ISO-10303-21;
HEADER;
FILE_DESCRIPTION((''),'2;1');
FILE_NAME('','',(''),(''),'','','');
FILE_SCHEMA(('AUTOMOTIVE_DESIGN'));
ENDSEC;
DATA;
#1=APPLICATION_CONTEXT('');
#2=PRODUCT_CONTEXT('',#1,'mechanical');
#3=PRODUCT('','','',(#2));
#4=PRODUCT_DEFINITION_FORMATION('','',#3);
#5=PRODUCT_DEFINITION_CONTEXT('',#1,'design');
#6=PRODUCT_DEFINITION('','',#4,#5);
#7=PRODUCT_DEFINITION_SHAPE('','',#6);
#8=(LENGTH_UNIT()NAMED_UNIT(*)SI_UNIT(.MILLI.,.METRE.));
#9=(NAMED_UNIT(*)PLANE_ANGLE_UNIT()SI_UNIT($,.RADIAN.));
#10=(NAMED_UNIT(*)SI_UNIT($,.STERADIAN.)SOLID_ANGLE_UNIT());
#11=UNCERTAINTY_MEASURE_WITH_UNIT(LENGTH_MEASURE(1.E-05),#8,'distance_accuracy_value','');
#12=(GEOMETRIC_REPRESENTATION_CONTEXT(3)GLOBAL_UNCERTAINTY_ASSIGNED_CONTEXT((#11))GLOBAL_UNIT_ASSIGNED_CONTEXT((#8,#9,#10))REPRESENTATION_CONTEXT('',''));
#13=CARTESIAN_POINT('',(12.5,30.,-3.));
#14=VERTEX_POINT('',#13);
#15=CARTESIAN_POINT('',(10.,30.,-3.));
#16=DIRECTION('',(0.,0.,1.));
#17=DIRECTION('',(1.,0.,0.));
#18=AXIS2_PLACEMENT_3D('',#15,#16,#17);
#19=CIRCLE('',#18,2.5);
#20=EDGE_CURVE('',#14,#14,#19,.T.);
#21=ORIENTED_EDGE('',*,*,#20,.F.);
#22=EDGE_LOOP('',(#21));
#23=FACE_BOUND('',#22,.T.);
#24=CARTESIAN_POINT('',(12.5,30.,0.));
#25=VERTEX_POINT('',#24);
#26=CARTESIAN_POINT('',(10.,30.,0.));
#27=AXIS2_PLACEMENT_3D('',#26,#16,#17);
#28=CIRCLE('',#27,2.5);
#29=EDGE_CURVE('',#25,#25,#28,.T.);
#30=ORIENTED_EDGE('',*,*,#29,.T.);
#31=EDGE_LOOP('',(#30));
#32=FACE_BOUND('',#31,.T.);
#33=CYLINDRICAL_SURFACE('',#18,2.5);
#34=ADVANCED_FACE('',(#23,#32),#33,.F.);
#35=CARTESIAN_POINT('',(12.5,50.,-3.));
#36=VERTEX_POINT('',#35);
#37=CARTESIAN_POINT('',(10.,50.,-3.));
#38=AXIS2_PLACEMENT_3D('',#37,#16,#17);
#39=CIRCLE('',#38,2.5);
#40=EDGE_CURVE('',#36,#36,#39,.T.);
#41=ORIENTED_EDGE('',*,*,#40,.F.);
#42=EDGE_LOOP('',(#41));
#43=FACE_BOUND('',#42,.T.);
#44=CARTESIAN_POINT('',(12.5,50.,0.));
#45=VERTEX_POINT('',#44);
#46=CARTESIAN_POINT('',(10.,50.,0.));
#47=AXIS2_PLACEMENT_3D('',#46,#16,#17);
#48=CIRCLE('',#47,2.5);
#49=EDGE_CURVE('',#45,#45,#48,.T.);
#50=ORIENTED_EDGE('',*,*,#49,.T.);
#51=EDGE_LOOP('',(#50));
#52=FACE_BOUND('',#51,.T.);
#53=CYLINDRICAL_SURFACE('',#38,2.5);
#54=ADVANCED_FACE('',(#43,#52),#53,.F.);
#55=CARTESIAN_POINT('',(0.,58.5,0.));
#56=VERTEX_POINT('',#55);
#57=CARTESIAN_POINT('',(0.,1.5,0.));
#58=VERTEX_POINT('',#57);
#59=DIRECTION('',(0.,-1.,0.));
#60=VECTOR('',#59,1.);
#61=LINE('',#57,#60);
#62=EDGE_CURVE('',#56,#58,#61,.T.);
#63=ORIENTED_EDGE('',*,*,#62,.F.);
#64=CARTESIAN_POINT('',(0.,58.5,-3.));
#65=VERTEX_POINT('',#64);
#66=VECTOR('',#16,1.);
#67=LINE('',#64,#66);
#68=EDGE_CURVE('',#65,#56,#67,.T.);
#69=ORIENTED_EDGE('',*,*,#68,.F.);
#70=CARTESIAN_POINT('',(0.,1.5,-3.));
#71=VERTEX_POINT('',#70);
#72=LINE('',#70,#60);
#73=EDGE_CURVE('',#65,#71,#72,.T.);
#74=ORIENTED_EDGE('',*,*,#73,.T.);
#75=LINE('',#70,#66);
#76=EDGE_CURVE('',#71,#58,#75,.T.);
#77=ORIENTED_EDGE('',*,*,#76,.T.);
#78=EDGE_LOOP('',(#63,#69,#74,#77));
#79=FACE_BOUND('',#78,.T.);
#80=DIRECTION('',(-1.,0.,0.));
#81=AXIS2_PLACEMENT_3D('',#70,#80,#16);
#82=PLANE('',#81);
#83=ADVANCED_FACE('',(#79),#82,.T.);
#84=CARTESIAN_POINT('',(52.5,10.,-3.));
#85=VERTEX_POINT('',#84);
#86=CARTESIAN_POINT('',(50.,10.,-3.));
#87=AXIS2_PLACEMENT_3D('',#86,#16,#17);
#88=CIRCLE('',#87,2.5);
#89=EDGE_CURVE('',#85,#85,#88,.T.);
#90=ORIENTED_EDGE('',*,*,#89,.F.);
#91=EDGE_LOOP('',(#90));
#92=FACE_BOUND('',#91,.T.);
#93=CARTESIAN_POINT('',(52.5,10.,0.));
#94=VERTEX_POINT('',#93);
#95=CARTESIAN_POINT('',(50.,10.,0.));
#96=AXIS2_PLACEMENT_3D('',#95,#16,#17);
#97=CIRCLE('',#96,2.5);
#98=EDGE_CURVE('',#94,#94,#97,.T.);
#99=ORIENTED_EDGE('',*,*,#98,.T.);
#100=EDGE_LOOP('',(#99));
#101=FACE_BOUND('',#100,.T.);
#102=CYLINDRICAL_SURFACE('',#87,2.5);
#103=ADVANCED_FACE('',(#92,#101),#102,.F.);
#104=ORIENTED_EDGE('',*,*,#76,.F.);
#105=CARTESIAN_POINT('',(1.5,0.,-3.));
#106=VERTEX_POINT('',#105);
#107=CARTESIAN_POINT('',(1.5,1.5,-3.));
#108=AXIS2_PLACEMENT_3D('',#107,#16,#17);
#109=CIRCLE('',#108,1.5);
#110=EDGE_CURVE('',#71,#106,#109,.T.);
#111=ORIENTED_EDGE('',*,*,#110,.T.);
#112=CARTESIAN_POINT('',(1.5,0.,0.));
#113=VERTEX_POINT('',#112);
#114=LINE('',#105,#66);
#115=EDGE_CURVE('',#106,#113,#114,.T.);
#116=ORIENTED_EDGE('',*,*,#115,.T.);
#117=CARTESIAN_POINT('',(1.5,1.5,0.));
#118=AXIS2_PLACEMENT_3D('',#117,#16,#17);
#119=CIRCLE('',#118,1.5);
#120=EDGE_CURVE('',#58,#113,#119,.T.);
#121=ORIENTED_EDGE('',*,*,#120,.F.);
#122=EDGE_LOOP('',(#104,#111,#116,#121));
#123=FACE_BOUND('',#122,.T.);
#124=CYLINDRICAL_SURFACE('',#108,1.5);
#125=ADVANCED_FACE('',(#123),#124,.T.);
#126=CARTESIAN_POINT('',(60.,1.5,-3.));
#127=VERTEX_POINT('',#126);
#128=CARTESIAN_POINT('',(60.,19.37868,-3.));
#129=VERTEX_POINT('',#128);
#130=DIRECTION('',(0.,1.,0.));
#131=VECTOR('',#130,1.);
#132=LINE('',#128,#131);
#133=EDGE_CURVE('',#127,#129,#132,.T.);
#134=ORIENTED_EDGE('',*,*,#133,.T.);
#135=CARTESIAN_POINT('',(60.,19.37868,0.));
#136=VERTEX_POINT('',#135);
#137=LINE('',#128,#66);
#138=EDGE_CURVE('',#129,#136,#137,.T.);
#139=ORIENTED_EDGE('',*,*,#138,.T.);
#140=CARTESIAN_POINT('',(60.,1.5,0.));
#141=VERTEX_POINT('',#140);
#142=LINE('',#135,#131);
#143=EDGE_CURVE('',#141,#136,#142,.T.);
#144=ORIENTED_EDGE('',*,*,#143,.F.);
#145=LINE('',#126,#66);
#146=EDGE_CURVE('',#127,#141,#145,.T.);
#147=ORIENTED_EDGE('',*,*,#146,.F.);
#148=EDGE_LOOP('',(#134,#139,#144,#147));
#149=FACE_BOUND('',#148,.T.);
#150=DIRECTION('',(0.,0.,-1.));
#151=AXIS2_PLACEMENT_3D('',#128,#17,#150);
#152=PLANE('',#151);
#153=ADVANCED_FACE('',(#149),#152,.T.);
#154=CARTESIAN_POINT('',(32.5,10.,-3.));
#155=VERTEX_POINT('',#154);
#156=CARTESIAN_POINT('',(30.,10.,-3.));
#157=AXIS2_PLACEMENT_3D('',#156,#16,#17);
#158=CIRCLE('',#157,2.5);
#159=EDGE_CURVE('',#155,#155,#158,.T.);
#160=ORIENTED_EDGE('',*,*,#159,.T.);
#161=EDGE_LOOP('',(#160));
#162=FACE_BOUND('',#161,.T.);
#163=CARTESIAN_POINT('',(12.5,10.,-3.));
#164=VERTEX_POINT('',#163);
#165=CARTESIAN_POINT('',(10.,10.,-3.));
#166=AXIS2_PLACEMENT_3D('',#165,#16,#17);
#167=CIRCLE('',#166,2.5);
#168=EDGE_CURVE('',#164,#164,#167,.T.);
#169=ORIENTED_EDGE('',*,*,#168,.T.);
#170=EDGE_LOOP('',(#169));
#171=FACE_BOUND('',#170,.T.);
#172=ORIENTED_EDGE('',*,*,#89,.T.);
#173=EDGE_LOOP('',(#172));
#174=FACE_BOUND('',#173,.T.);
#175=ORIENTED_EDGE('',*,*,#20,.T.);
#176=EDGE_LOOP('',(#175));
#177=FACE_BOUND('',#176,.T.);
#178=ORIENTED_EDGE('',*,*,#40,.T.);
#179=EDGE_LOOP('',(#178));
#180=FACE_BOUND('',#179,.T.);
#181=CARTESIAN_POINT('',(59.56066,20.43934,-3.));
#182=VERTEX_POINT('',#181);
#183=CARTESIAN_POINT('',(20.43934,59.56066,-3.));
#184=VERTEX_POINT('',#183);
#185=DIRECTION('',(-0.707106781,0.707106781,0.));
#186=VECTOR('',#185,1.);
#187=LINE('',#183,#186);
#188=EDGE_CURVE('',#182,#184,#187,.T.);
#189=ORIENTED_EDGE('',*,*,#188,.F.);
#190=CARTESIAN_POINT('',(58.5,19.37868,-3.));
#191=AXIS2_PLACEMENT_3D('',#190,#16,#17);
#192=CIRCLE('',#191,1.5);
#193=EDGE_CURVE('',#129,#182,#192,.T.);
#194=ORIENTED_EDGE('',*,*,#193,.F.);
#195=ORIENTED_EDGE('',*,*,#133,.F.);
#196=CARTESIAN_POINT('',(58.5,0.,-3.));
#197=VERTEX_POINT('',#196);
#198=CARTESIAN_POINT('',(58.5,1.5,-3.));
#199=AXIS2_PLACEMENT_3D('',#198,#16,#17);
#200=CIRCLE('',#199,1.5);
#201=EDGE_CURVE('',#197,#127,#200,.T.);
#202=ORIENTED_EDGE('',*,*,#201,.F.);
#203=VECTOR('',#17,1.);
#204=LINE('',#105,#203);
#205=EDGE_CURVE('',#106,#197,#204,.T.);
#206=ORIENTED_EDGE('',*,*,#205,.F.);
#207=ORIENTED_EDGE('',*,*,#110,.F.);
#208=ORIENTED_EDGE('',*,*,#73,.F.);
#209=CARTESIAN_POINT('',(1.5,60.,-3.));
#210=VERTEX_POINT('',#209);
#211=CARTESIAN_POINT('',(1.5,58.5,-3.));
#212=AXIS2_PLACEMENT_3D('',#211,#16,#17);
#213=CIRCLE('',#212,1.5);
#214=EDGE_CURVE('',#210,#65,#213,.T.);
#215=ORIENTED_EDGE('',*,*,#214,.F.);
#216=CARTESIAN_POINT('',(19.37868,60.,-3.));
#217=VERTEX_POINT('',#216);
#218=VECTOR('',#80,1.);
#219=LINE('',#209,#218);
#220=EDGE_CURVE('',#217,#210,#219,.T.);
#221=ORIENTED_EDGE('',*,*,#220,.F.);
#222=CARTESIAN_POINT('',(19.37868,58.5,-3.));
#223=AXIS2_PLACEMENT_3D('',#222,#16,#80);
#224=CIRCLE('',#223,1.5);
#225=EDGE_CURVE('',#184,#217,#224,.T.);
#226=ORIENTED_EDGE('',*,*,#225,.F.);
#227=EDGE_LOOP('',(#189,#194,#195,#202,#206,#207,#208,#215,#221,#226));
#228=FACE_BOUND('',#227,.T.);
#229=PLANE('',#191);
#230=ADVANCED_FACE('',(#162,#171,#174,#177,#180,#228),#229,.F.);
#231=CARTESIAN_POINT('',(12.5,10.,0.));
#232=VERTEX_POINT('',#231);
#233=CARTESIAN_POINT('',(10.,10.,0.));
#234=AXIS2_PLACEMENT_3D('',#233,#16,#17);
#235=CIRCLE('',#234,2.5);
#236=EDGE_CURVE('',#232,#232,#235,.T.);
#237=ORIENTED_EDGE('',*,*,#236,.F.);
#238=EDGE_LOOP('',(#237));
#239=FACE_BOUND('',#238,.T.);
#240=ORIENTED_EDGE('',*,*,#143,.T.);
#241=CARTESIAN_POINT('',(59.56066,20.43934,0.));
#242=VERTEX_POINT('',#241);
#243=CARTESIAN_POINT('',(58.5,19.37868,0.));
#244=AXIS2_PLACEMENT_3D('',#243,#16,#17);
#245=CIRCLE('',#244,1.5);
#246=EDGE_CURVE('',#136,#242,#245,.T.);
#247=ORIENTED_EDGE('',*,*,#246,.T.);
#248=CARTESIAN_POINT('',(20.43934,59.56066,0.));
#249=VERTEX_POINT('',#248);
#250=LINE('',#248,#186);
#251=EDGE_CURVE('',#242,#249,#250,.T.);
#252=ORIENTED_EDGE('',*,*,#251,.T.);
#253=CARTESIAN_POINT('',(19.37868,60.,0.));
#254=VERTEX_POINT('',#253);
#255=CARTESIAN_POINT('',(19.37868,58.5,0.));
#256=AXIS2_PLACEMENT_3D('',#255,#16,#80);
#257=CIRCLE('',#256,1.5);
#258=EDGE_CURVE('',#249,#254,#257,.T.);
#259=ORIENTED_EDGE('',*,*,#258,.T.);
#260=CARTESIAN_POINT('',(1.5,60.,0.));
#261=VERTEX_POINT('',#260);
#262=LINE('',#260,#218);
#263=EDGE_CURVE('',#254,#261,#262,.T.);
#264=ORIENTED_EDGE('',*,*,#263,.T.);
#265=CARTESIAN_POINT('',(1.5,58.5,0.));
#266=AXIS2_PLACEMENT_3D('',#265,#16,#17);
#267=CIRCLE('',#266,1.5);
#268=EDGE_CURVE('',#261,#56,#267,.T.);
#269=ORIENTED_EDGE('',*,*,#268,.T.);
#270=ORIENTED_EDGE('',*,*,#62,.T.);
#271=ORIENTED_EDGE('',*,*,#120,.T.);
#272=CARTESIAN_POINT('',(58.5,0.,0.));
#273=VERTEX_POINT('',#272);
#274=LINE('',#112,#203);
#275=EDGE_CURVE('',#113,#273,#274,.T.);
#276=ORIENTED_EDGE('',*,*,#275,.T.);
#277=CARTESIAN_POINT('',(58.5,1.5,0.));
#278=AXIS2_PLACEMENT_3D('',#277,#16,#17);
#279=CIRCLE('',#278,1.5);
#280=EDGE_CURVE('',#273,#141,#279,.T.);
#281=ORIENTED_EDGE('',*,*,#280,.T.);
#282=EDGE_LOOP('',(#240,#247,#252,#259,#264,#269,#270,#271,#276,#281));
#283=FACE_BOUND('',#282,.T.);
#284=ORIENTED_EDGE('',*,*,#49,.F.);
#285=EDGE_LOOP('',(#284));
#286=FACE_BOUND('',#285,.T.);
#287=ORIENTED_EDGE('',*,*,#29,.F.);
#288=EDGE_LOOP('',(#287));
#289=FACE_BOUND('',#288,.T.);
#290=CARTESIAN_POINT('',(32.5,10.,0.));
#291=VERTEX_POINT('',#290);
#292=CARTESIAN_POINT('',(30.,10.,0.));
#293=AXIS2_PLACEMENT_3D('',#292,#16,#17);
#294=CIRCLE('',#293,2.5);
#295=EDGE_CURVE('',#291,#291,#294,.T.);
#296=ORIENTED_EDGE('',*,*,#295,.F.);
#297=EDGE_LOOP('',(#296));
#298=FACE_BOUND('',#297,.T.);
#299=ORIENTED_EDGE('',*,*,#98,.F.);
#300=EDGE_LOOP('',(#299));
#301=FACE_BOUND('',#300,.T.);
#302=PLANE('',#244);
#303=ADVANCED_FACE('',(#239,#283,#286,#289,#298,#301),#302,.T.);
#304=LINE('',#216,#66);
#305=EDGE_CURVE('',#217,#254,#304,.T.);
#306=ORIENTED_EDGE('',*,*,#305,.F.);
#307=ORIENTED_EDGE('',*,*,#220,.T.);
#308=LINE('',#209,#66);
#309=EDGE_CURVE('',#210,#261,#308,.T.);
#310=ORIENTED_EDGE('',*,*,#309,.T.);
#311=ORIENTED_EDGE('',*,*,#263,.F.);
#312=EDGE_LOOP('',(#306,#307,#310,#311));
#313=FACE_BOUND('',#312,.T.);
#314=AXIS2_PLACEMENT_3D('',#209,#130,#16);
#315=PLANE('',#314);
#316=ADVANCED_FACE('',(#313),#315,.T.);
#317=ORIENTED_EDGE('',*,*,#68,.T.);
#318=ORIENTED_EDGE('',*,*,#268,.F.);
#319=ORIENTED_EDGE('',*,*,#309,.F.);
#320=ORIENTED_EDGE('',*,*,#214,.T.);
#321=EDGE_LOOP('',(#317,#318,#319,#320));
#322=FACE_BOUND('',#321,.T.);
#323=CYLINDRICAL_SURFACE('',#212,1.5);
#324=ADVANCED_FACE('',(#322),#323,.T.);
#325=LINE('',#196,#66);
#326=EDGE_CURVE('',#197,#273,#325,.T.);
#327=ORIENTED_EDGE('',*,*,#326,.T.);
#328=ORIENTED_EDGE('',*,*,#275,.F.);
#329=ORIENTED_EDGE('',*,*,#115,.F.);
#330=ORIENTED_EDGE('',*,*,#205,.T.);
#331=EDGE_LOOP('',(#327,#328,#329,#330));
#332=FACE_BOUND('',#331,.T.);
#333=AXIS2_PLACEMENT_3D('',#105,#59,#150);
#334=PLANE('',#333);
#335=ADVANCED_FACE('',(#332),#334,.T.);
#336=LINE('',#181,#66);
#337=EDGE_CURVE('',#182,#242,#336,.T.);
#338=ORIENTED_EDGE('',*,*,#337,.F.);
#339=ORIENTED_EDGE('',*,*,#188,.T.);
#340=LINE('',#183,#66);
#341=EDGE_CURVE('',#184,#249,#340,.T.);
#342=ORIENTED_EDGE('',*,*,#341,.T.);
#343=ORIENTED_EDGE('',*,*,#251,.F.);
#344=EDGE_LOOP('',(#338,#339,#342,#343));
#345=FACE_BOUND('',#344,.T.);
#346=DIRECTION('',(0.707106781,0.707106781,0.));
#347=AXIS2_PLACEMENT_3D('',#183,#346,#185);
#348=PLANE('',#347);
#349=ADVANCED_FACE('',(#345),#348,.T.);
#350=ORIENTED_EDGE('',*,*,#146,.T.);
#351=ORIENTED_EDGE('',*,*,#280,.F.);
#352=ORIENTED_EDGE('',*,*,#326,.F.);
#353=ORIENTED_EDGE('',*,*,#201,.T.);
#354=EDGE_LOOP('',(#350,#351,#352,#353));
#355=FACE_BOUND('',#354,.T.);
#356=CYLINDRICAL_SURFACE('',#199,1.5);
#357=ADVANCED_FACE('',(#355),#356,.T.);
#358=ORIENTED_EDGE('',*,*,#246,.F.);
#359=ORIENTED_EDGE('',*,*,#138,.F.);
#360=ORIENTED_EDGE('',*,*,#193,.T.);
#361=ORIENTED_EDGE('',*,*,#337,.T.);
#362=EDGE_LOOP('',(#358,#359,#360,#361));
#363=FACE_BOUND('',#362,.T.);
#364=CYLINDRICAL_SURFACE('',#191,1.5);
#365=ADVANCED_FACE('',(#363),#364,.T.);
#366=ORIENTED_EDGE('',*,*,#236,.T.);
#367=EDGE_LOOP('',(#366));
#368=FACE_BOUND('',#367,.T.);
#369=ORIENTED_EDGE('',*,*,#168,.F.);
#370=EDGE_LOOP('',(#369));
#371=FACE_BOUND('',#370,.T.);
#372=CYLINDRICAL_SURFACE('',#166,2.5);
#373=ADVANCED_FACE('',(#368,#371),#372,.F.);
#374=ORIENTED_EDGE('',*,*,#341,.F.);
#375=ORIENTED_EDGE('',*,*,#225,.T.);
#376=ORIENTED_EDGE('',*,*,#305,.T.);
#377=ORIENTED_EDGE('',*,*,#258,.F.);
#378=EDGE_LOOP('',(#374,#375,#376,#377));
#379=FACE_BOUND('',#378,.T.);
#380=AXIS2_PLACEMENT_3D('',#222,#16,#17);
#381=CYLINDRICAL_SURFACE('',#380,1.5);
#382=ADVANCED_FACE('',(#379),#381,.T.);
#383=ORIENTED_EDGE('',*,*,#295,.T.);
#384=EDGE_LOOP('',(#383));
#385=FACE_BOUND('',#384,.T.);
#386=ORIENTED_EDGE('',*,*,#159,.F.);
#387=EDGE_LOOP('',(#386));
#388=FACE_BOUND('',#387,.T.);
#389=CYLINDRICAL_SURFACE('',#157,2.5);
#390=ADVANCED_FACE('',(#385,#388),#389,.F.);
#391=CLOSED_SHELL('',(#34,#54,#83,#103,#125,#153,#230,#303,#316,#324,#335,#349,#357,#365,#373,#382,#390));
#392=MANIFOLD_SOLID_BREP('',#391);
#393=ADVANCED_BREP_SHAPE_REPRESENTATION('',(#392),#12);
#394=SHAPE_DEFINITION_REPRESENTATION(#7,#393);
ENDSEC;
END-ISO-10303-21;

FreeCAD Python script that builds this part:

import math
import FreeCAD as App
import Part
import Sketcher
from FreeCAD import Vector
Q = App.Units.Quantity

doc = App.newDocument("Part")
body = doc.addObject("PartDesign::Body", "Body")

# Sketch on XY plane
sketch1 = body.newObject("Sketcher::SketchObject", "Sketch")
sketch1.AttachmentSupport = (doc.getObject("XY_Plane"), [""])
sketch1.MapMode = "FlatFace"
sketch1.addGeometry(Part.LineSegment(Vector(19.4, 60, 0), Vector(1.5, 60, 0)), False)
sketch1.addGeometry(Part.ArcOfCircle(Part.Circle(Vector(1.5, 58.5, 0), Vector(0, 0, 1), 1.5), math.radians(90), math.radians(180)), False)
sketch1.addGeometry(Part.LineSegment(Vector(0, 58.5, 0), Vector(0, 1.5, 0)), False)
sketch1.addGeometry(Part.ArcOfCircle(Part.Circle(Vector(1.5, 1.5, 0), Vector(0, 0, 1), 1.5), math.radians(180), math.radians(270)), False)
sketch1.addGeometry(Part.LineSegment(Vector(1.5, 0, 0), Vector(58.5, 0, 0)), False)
sketch1.addGeometry(Part.ArcOfCircle(Part.Circle(Vector(58.5, 1.5, 0), Vector(0, 0, 1), 1.5), math.radians(-90), math.radians(0)), False)
sketch1.addGeometry(Part.LineSegment(Vector(60, 1.5, 0), Vector(60, 19.4, 0)), False)
sketch1.addGeometry(Part.ArcOfCircle(Part.Circle(Vector(58.5, 19.4, 0), Vector(0, 0, 1), 1.5), math.radians(0), math.radians(45)), False)
sketch1.addGeometry(Part.LineSegment(Vector(59.6, 20.4, 0), Vector(20.4, 59.6, 0)), False)
sketch1.addGeometry(Part.ArcOfCircle(Part.Circle(Vector(19.4, 58.5, 0), Vector(0, 0, 1), 1.5), math.radians(45), math.radians(90)), False)
sketch1.addConstraint(Sketcher.Constraint("Tangent", 0, 2, 1, 1))
sketch1.addConstraint(Sketcher.Constraint("Tangent", 1, 2, 2, 1))
sketch1.addConstraint(Sketcher.Constraint("Tangent", 2, 2, 3, 1))
sketch1.addConstraint(Sketcher.Constraint("Tangent", 3, 2, 4, 1))
sketch1.addConstraint(Sketcher.Constraint("Tangent", 4, 2, 5, 1))
sketch1.addConstraint(Sketcher.Constraint("Tangent", 5, 2, 6, 1))
sketch1.addConstraint(Sketcher.Constraint("Tangent", 6, 2, 7, 1))
sketch1.addConstraint(Sketcher.Constraint("Tangent", 7, 2, 8, 1))
sketch1.addConstraint(Sketcher.Constraint("Tangent", 8, 2, 9, 1))
sketch1.addConstraint(Sketcher.Constraint("Tangent", 9, 2, 0, 1))
sketch1.addConstraint(Sketcher.Constraint("Horizontal", 0))
sketch1.addConstraint(Sketcher.Constraint("Vertical", 2))
sketch1.addConstraint(Sketcher.Constraint("Horizontal", 4))
sketch1.addConstraint(Sketcher.Constraint("Vertical", 6))
sketch1.addConstraint(Sketcher.Constraint("Equal", 1, 3))
sketch1.addConstraint(Sketcher.Constraint("Equal", 3, 5))
sketch1.addConstraint(Sketcher.Constraint("Equal", 5, 7))
sketch1.addConstraint(Sketcher.Constraint("Equal", 7, 9))
sketch1.addConstraint(Sketcher.Constraint("PointOnObject", 1, 2, -2))
sketch1.addConstraint(Sketcher.Constraint("PointOnObject", 3, 2, -1))
sketch1.addConstraint(Sketcher.Constraint("Equal", 4, 2))
sketch1.addConstraint(Sketcher.Constraint("Equal", 0, 6))
sketch1.addConstraint(Sketcher.Constraint("Radius", 1, Q("1.5 mm")))
sketch1.addConstraint(Sketcher.Constraint("DistanceX", 4, 1, 4, 2, Q("57 mm")))
sketch1.addConstraint(Sketcher.Constraint("Distance", 8, Q("55.325902 mm")))
pad1 = body.newObject("PartDesign::Pad", "Pad")
pad1.Profile = sketch1
pad1.Length = 3
pad1.Reversed = True

# Sketch on XY plane
sketch2 = body.newObject("Sketcher::SketchObject", "Sketch001")
sketch2.AttachmentSupport = (doc.getObject("XY_Plane"), [""])
sketch2.MapMode = "FlatFace"
sketch2.addGeometry(Part.Circle(Vector(10, 10, 0), Vector(0, 0, 1), 2.5), False)
sketch2.addGeometry(Part.Circle(Vector(30, 10, 0), Vector(0, 0, 1), 2.5), False)
sketch2.addGeometry(Part.Circle(Vector(50, 10, 0), Vector(0, 0, 1), 2.5), False)
sketch2.addGeometry(Part.Circle(Vector(10, 30, 0), Vector(0, 0, 1), 2.5), False)
sketch2.addGeometry(Part.Circle(Vector(10, 50, 0), Vector(0, 0, 1), 2.5), False)
sketch2.addConstraint(Sketcher.Constraint("Equal", 0, 1))
sketch2.addConstraint(Sketcher.Constraint("Equal", 1, 2))
sketch2.addConstraint(Sketcher.Constraint("Equal", 2, 3))
sketch2.addConstraint(Sketcher.Constraint("Equal", 3, 4))
sketch2.addConstraint(Sketcher.Constraint("Horizontal", 0, 3, 1, 3))
sketch2.addConstraint(Sketcher.Constraint("Horizontal", 1, 3, 2, 3))
sketch2.addConstraint(Sketcher.Constraint("Vertical", 0, 3, 3, 3))
sketch2.addConstraint(Sketcher.Constraint("Vertical", 3, 3, 4, 3))
sketch2.addConstraint(Sketcher.Constraint("Diameter", 0, Q("5 mm")))
sketch2.addConstraint(Sketcher.Constraint("DistanceX", -1, 1, 0, 3, Q("10 mm")))
sketch2.addConstraint(Sketcher.Constraint("DistanceY", -1, 1, 0, 3, Q("10 mm")))
sketch2.addConstraint(Sketcher.Constraint("DistanceX", -1, 1, 1, 3, Q("30 mm")))
sketch2.addConstraint(Sketcher.Constraint("DistanceX", -1, 1, 2, 3, Q("50 mm")))
sketch2.addConstraint(Sketcher.Constraint("DistanceY", -1, 1, 3, 3, Q("30 mm")))
sketch2.addConstraint(Sketcher.Constraint("DistanceY", -1, 1, 4, 3, Q("50 mm")))
pocket1 = body.newObject("PartDesign::Pocket", "Pocket")
pocket1.Profile = sketch2
pocket1.Length = 3

doc.recompute()
